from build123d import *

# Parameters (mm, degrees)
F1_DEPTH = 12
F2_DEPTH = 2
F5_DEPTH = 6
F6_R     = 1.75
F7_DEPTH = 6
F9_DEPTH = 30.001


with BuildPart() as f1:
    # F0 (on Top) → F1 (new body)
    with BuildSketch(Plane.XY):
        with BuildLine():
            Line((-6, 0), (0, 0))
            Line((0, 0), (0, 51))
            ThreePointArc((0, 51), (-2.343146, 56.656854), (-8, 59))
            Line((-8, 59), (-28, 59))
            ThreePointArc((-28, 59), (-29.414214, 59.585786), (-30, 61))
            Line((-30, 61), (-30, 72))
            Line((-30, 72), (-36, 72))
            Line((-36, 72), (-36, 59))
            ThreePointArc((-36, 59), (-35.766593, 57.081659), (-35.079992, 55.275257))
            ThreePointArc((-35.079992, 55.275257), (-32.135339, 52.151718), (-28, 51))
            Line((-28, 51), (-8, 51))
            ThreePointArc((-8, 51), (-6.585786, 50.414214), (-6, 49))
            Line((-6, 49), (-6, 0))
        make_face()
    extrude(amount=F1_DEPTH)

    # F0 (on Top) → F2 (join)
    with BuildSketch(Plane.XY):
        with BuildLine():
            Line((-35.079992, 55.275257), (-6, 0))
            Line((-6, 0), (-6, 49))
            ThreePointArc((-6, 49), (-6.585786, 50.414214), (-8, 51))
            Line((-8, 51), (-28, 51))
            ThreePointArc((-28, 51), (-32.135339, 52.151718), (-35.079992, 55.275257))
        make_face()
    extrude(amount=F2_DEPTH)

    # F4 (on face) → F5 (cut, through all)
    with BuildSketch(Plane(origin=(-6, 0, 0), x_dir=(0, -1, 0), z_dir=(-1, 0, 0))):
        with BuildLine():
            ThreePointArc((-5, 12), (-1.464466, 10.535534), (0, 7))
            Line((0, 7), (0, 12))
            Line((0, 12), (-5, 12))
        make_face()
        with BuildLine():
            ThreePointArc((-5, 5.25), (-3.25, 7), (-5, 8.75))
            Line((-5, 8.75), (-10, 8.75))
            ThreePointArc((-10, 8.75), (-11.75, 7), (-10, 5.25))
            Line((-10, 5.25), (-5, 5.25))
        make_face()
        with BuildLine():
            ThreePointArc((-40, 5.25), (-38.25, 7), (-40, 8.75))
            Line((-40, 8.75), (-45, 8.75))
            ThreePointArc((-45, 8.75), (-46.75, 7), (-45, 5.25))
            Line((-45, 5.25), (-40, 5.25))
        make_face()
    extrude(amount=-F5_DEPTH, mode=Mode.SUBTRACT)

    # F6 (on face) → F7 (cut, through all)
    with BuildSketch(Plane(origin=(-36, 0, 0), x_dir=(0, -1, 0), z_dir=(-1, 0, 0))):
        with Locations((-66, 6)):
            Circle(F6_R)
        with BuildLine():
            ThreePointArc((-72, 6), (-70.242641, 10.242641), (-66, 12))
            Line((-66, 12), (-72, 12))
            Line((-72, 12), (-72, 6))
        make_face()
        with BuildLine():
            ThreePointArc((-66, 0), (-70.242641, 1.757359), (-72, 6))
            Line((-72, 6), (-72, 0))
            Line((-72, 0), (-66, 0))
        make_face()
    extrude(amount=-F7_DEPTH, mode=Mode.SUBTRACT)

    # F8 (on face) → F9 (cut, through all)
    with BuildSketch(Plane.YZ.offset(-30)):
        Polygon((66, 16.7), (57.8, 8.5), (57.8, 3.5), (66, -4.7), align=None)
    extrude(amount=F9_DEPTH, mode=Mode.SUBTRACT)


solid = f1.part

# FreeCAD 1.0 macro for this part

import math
import FreeCAD as App
import Part
import Sketcher
from FreeCAD import Vector
Q = App.Units.Quantity


def add_polygon(sketch, points):
    """Adds a closed chain of lines whose ends are joined by coincident constraints."""
    first, n = sketch.GeometryCount, len(points)
    for a, b in zip(points, points[1:] + points[:1]):
        sketch.addGeometry(Part.LineSegment(App.Vector(*a, 0), App.Vector(*b, 0)), False)
    for i in range(n):
        sketch.addConstraint(Sketcher.Constraint("Coincident", first + i, 2, first + (i + 1) % n, 1))

doc = App.newDocument("Part")
params = doc.addObject("Spreadsheet::Sheet", "Params")
for row, (alias, value) in enumerate([
    ("sketch1_radius", "8.000001 mm"),
    ("sketch1_radius2", "1.999999 mm"),
    ("sketch1_width", "20 mm"),
    ("sketch1_height", "51 mm"),
    ("sketch1_height2", "11 mm"),
    ("pad1_length", "12 mm"),
    ("sketch2_radius", "1.999999 mm"),
    ("sketch2_radius2", "8.000001 mm"),
    ("sketch2_width", "20 mm"),
    ("sketch2_height", "49 mm"),
    ("pad2_length", "2 mm"),
    ("sketch3_radius", "5 mm"),
    ("sketch3_radius2", "1.75 mm"),
    ("sketch4_radius", "5.999999 mm"),
    ("sketch4_diameter", "3.5 mm"),
    ("sketch5_height", "5 mm"),
    ("sketch5_height2", "21.4 mm"),
], start=1):
    params.set(f"A{row}", alias)
    params.set(f"B{row}", "=" + value)
    params.setAlias(f"B{row}", alias)

body = doc.addObject("PartDesign::Body", "Body")

# Sketch on XY plane
sketch1 = doc.addObject("Sketcher::SketchObject", "Sketch")
body.addObject(sketch1)
sketch1.AttachmentSupport = (doc.XY_Plane, [""])
sketch1.MapMode = "FlatFace"
sketch1.addGeometry([
    Part.LineSegment(Vector(-6, 0, 0), Vector(0, 0, 0)),  # 0
    Part.LineSegment(Vector(0, 0, 0), Vector(0, 51, 0)),  # 1
    Part.ArcOfCircle(Part.Circle(Vector(-8, 51, 0), Vector(0, 0, 1), 8), math.radians(0), math.radians(90)),  # 2
    Part.LineSegment(Vector(-8, 59, 0), Vector(-28, 59, 0)),  # 3
    Part.ArcOfCircle(Part.Circle(Vector(-28, 61, 0), Vector(0, 0, 1), 2), math.radians(180), math.radians(270)),  # 4
    Part.LineSegment(Vector(-30, 61, 0), Vector(-30, 72, 0)),  # 5
    Part.LineSegment(Vector(-30, 72, 0), Vector(-36, 72, 0)),  # 6
    Part.LineSegment(Vector(-36, 72, 0), Vector(-36, 59, 0)),  # 7
    Part.ArcOfCircle(Part.Circle(Vector(-28, 59, 0), Vector(0, 0, 1), 8), math.radians(-180), math.radians(-152)),  # 8
    Part.ArcOfCircle(Part.Circle(Vector(-28, 59, 0), Vector(0, 0, 1), 8), math.radians(-152), math.radians(-90)),  # 9
    Part.LineSegment(Vector(-28, 51, 0), Vector(-8, 51, 0)),  # 10
    Part.ArcOfCircle(Part.Circle(Vector(-8, 49, 0), Vector(0, 0, 1), 2), math.radians(0), math.radians(90)),  # 11
    Part.LineSegment(Vector(-6, 49, 0), Vector(-6, 0, 0)),  # 12
], False)
sketch1.addConstraint([
    Sketcher.Constraint("Coincident", 0, 2, 1, 1),
    Sketcher.Constraint("Tangent", 1, 2, 2, 1),
    Sketcher.Constraint("Tangent", 2, 2, 3, 1),
    Sketcher.Constraint("Tangent", 3, 2, 4, 2),
    Sketcher.Constraint("Tangent", 4, 1, 5, 1),
    Sketcher.Constraint("Coincident", 5, 2, 6, 1),
    Sketcher.Constraint("Coincident", 6, 2, 7, 1),
    Sketcher.Constraint("Tangent", 7, 2, 8, 1),
    Sketcher.Constraint("Tangent", 8, 2, 9, 1),
    Sketcher.Constraint("Tangent", 9, 2, 10, 1),
    Sketcher.Constraint("Tangent", 10, 2, 11, 2),
    Sketcher.Constraint("Tangent", 11, 1, 12, 1),
    Sketcher.Constraint("Coincident", 12, 2, 0, 1),
    Sketcher.Constraint("Horizontal", 0),
    Sketcher.Constraint("Vertical", 1),
    Sketcher.Constraint("Horizontal", 3),
    Sketcher.Constraint("Vertical", 5),
    Sketcher.Constraint("Horizontal", 6),
    Sketcher.Constraint("Vertical", 7),
    Sketcher.Constraint("Horizontal", 10),
    Sketcher.Constraint("Vertical", 12),
    Sketcher.Constraint("Coincident", 0, 2, -1, 1),
    Sketcher.Constraint("Coincident", 3, 2, 8, 3),
    Sketcher.Constraint("Coincident", 10, 2, 2, 3),
    Sketcher.Constraint("Equal", 2, 8),
    Sketcher.Constraint("Equal", 4, 11),
    Sketcher.Constraint("Radius", 2, Q("8.000001 mm")),
    Sketcher.Constraint("Radius", 4, Q("1.999999 mm")),
    Sketcher.Constraint("DistanceX", 3, 2, 3, 1, Q("20 mm")),
    Sketcher.Constraint("DistanceY", 1, 1, 1, 2, Q("51 mm")),
    Sketcher.Constraint("DistanceY", 5, 1, 5, 2, Q("11 mm")),
    Sketcher.Constraint("DistanceX", 8, 2, 8, 3, Q("7.079991 mm")),
])
sketch1.setExpression("Constraints[26]", "Params.sketch1_radius")
sketch1.setExpression("Constraints[27]", "Params.sketch1_radius2")
sketch1.setExpression("Constraints[28]", "Params.sketch1_width")
sketch1.setExpression("Constraints[29]", "Params.sketch1_height")
sketch1.setExpression("Constraints[30]", "Params.sketch1_height2")
pad1 = doc.addObject("PartDesign::Pad", "Pad")
body.addObject(pad1)
pad1.Profile = sketch1
pad1.setExpression("Length", "Params.pad1_length")

# Sketch on XY plane
sketch2 = doc.addObject("Sketcher::SketchObject", "Sketch001")
body.addObject(sketch2)
sketch2.AttachmentSupport = (doc.XY_Plane, [""])
sketch2.MapMode = "FlatFace"
sketch2.addGeometry([
    Part.LineSegment(Vector(-35.1, 55.3, 0), Vector(-6, 0, 0)),  # 0
    Part.LineSegment(Vector(-6, 0, 0), Vector(-6, 49, 0)),  # 1
    Part.ArcOfCircle(Part.Circle(Vector(-8, 49, 0), Vector(0, 0, 1), 2), math.radians(0), math.radians(90)),  # 2
    Part.LineSegment(Vector(-8, 51, 0), Vector(-28, 51, 0)),  # 3
    Part.ArcOfCircle(Part.Circle(Vector(-28, 59, 0), Vector(0, 0, 1), 8), math.radians(-152), math.radians(-90)),  # 4
], False)
sketch2.addConstraint([
    Sketcher.Constraint("Coincident", 0, 2, 1, 1),
    Sketcher.Constraint("Tangent", 1, 2, 2, 1),
    Sketcher.Constraint("Tangent", 2, 2, 3, 1),
    Sketcher.Constraint("Tangent", 3, 2, 4, 2),
    Sketcher.Constraint("Tangent", 4, 1, 0, 1),
    Sketcher.Constraint("Vertical", 1),
    Sketcher.Constraint("Horizontal", 3),
    Sketcher.Constraint("PointOnObject", 0, 2, -1),
    Sketcher.Constraint("Radius", 2, Q("1.999999 mm")),
    Sketcher.Constraint("Radius", 4, Q("8.000001 mm")),
    Sketcher.Constraint("DistanceX", 3, 2, 3, 1, Q("20 mm")),
    Sketcher.Constraint("DistanceY", 1, 1, 1, 2, Q("49 mm")),
    Sketcher.Constraint("DistanceX", 2, 3, -1, 1, Q("7.999999 mm")),
])
sketch2.setExpression("Constraints[8]", "Params.sketch2_radius")
sketch2.setExpression("Constraints[9]", "Params.sketch2_radius2")
sketch2.setExpression("Constraints[10]", "Params.sketch2_width")
sketch2.setExpression("Constraints[11]", "Params.sketch2_height")
pad2 = doc.addObject("PartDesign::Pad", "Pad001")
body.addObject(pad2)
pad2.Profile = sketch2
pad2.setExpression("Length", "Params.pad2_length")

# Sketch on YZ plane
sketch3 = doc.addObject("Sketcher::SketchObject", "Sketch002")
body.addObject(sketch3)
sketch3.AttachmentSupport = (doc.YZ_Plane, [""])
sketch3.MapMode = "FlatFace"
sketch3.AttachmentOffset = App.Placement(Vector(0, 0, -6), App.Rotation())
sketch3.addGeometry([
    Part.ArcOfCircle(Part.Circle(Vector(5, 7, 0), Vector(0, 0, 1), 5), math.radians(90), math.radians(180)),  # 0
    Part.LineSegment(Vector(0, 7, 0), Vector(0, 12, 0)),  # 1
    Part.LineSegment(Vector(0, 12, 0), Vector(5, 12, 0)),  # 2
    Part.ArcOfCircle(Part.Circle(Vector(5, 7, 0), Vector(0, 0, 1), 1.8), math.radians(90), math.radians(270)),  # 3
    Part.LineSegment(Vector(5, 8.8, 0), Vector(10, 8.8, 0)),  # 4
    Part.ArcOfCircle(Part.Circle(Vector(10, 7, 0), Vector(0, 0, 1), 1.8), math.radians(-90), math.radians(90)),  # 5
    Part.LineSegment(Vector(10, 5.2, 0), Vector(5, 5.2, 0)),  # 6
    Part.ArcOfCircle(Part.Circle(Vector(40, 7, 0), Vector(0, 0, 1), 1.8), math.radians(90), math.radians(270)),  # 7
    Part.LineSegment(Vector(40, 8.8, 0), Vector(45, 8.8, 0)),  # 8
    Part.ArcOfCircle(Part.Circle(Vector(45, 7, 0), Vector(0, 0, 1), 1.8), math.radians(-90), math.radians(90)),  # 9
    Part.LineSegment(Vector(45, 5.2, 0), Vector(40, 5.2, 0)),  # 10
], False)
sketch3.addConstraint([
    Sketcher.Constraint("Tangent", 0, 2, 1, 1),
    Sketcher.Constraint("Coincident", 1, 2, 2, 1),
    Sketcher.Constraint("Tangent", 2, 2, 0, 1),
    Sketcher.Constraint("Tangent", 3, 1, 4, 1),
    Sketcher.Constraint("Tangent", 4, 2, 5, 2),
    Sketcher.Constraint("Tangent", 5, 1, 6, 1),
    Sketcher.Constraint("Tangent", 6, 2, 3, 2),
    Sketcher.Constraint("Tangent", 7, 1, 8, 1),
    Sketcher.Constraint("Tangent", 8, 2, 9, 2),
    Sketcher.Constraint("Tangent", 9, 1, 10, 1),
    Sketcher.Constraint("Tangent", 10, 2, 7, 2),
    Sketcher.Constraint("Vertical", 1),
    Sketcher.Constraint("Horizontal", 2),
    Sketcher.Constraint("Horizontal", 4),
    Sketcher.Constraint("Horizontal", 6),
    Sketcher.Constraint("Horizontal", 8),
    Sketcher.Constraint("Horizontal", 10),
    Sketcher.Constraint("Coincident", 3, 3, 0, 3),
    Sketcher.Constraint("Equal", 5, 7),
    Sketcher.Constraint("PointOnObject", 0, 2, -2),
    Sketcher.Constraint("Horizontal", 5, 3, 7, 3),
    Sketcher.Constraint("Equal", 2, 4),
    Sketcher.Constraint("Equal", 6, 8),
    Sketcher.Constraint("Radius", 0, Q("5 mm")),
    Sketcher.Constraint("Radius", 3, Q("1.75 mm")),
    Sketcher.Constraint("DistanceY", -1, 1, 0, 3, Q("7 mm")),
    Sketcher.Constraint("DistanceX", -1, 1, 7, 3, Q("40 mm")),
])
sketch3.setExpression("Constraints[23]", "Params.sketch3_radius")
sketch3.setExpression("Constraints[24]", "Params.sketch3_radius2")
pocket1 = doc.addObject("PartDesign::Pocket", "Pocket")
body.addObject(pocket1)
pocket1.Profile = sketch3
pocket1.Type = "ThroughAll"
pocket1.Reversed = True

# Sketch on YZ plane
sketch4 = doc.addObject("Sketcher::SketchObject", "Sketch003")
body.addObject(sketch4)
sketch4.AttachmentSupport = (doc.YZ_Plane, [""])
sketch4.MapMode = "FlatFace"
sketch4.AttachmentOffset = App.Placement(Vector(0, 0, -36), App.Rotation())
sketch4.addGeometry([
    Part.Circle(Vector(66, 6, 0), Vector(0, 0, 1), 1.8),  # 0
    Part.ArcOfCircle(Part.Circle(Vector(66, 6, 0), Vector(0, 0, 1), 6), math.radians(0), math.radians(90)),  # 1
    Part.LineSegment(Vector(66, 12, 0), Vector(72, 12, 0)),  # 2
    Part.LineSegment(Vector(72, 12, 0), Vector(72, 6, 0)),  # 3
    Part.ArcOfCircle(Part.Circle(Vector(66, 6, 0), Vector(0, 0, 1), 6), math.radians(-90), math.radians(0)),  # 4
    Part.LineSegment(Vector(72, 6, 0), Vector(72, 0, 0)),  # 5
    Part.LineSegment(Vector(72, 0, 0), Vector(66, 0, 0)),  # 6
], False)
sketch4.addConstraint([
    Sketcher.Constraint("Tangent", 1, 2, 2, 1),
    Sketcher.Constraint("Coincident", 2, 2, 3, 1),
    Sketcher.Constraint("Tangent", 3, 2, 1, 1),
    Sketcher.Constraint("Tangent", 4, 2, 5, 1),
    Sketcher.Constraint("Coincident", 5, 2, 6, 1),
    Sketcher.Constraint("Tangent", 6, 2, 4, 1),
    Sketcher.Constraint("Horizontal", 2),
    Sketcher.Constraint("Vertical", 3),
    Sketcher.Constraint("Vertical", 5),
    Sketcher.Constraint("Horizontal", 6),
    Sketcher.Constraint("Coincident", 1, 3, 0, 3),
    Sketcher.Constraint("Coincident", 4, 3, 0, 3),
    Sketcher.Constraint("Equal", 1, 4),
    Sketcher.Constraint("PointOnObject", 5, 2, -1),
    Sketcher.Constraint("Radius", 1, Q("5.999999 mm")),
    Sketcher.Constraint("Diameter", 0, Q("3.5 mm")),
    Sketcher.Constraint("DistanceX", -1, 1, 0, 3, Q("66 mm")),
])
sketch4.setExpression("Constraints[14]", "Params.sketch4_radius")
sketch4.setExpression("Constraints[15]", "Params.sketch4_diameter")
pocket2 = doc.addObject("PartDesign::Pocket", "Pocket001")
body.addObject(pocket2)
pocket2.Profile = sketch4
pocket2.Type = "ThroughAll"
pocket2.Reversed = True

# Sketch on YZ plane
sketch5 = doc.addObject("Sketcher::SketchObject", "Sketch004")
body.addObject(sketch5)
sketch5.AttachmentSupport = (doc.YZ_Plane, [""])
sketch5.MapMode = "FlatFace"
sketch5.AttachmentOffset = App.Placement(Vector(0, 0, -30), App.Rotation())
add_polygon(sketch5, [(66, 17), (58, 8), (58, 4), (66, -5)])  # lines 0-3
sketch5.addConstraint([
    Sketcher.Constraint("Vertical", 1),
    Sketcher.Constraint("Vertical", 3),
    Sketcher.Constraint("Perpendicular", 0, 2),
    Sketcher.Constraint("Equal", 0, 2),
    Sketcher.Constraint("DistanceY", 1, 2, 1, 1, Q("5 mm")),
    Sketcher.Constraint("DistanceY", 3, 1, 3, 2, Q("21.4 mm")),
    Sketcher.Constraint("DistanceX", -1, 1, 2, 2, Q("66 mm")),
    Sketcher.Constraint("DistanceY", -1, 1, 0, 2, Q("8.5 mm")),
])
sketch5.setExpression("Constraints[8]", "Params.sketch5_height")
sketch5.setExpression("Constraints[9]", "Params.sketch5_height2")
pocket3 = doc.addObject("PartDesign::Pocket", "Pocket002")
body.addObject(pocket3)
pocket3.Profile = sketch5
pocket3.Type = "ThroughAll"
pocket3.Reversed = True

doc.recompute()
